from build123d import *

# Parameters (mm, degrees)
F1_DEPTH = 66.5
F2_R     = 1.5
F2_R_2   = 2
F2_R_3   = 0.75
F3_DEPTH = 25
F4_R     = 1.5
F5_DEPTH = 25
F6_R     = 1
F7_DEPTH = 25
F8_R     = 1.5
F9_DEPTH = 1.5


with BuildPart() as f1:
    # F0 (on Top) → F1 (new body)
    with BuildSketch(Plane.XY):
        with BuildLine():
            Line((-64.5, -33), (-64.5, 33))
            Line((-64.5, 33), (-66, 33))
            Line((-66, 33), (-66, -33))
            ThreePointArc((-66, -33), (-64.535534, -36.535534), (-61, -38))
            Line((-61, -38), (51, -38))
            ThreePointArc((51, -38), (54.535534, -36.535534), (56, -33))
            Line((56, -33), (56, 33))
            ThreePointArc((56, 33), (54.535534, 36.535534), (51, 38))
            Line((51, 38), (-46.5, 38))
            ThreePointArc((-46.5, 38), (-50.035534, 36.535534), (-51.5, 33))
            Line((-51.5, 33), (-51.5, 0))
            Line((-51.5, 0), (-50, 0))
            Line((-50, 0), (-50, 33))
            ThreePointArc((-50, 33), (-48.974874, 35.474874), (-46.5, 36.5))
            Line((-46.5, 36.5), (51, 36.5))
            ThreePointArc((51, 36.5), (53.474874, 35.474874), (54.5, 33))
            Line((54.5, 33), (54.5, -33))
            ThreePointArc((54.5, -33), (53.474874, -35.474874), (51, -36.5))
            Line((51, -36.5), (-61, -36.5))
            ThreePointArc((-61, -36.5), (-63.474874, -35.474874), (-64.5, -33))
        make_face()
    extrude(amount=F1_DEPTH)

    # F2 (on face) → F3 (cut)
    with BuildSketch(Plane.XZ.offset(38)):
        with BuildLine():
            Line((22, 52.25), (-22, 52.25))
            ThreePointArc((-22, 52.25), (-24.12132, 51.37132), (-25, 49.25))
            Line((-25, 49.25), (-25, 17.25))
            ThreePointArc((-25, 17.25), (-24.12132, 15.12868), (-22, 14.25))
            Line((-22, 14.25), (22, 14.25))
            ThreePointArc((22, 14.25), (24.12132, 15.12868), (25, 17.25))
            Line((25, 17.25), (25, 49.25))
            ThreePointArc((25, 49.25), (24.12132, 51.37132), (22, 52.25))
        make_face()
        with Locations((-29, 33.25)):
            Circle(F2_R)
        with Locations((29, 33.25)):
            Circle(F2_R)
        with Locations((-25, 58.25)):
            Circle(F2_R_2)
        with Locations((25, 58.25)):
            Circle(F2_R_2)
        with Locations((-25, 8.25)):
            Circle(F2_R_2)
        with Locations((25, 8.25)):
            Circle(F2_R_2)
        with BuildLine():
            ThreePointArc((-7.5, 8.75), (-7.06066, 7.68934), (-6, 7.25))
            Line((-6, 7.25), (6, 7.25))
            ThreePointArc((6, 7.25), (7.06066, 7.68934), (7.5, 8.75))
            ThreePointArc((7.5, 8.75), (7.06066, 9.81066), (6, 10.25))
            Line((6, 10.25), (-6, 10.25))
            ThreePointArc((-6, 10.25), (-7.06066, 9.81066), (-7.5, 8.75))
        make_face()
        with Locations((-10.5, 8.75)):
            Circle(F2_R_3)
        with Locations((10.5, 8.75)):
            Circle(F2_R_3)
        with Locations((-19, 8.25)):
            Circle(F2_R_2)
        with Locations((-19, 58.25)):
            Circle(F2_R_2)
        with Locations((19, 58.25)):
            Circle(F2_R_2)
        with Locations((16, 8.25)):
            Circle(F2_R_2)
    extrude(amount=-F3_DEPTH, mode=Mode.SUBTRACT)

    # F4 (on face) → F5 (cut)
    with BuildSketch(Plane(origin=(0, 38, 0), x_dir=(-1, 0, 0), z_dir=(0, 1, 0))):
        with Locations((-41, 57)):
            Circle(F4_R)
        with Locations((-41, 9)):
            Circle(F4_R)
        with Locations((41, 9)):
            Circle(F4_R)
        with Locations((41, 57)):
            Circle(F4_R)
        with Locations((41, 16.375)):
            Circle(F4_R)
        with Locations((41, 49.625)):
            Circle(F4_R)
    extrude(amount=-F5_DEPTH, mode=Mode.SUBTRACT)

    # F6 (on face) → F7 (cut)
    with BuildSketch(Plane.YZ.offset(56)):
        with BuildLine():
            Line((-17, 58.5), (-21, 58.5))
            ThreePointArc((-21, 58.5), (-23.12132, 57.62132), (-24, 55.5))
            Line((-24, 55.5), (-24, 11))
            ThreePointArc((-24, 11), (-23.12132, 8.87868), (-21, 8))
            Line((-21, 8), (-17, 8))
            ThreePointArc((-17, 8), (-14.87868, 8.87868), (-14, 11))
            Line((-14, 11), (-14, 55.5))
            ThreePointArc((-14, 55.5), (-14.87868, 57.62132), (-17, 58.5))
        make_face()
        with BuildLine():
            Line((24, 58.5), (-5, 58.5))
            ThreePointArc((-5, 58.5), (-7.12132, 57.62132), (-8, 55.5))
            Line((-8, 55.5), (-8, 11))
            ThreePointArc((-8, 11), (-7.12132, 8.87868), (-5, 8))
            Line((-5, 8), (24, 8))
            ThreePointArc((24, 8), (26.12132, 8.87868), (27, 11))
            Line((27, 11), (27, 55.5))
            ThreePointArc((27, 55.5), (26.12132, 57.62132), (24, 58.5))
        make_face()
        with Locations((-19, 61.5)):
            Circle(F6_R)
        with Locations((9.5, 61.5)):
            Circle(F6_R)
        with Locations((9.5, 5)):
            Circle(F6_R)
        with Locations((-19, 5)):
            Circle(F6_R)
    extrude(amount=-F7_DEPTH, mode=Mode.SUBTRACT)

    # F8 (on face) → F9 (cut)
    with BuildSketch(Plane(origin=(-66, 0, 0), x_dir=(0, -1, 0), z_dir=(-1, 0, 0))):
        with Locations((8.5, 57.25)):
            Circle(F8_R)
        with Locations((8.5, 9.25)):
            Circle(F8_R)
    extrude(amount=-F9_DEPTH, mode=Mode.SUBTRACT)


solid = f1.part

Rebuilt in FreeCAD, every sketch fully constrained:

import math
import FreeCAD as App
import Part
import Sketcher

V = App.Vector

doc = App.newDocument("Part")
body = doc.addObject("PartDesign::Body", "Body")

# Sketch on XY plane
sketch1 = doc.addObject("Sketcher::SketchObject", "Sketch")
body.addObject(sketch1)
sketch1.AttachmentSupport = (doc.XY_Plane, [""])
sketch1.MapMode = "FlatFace"
sketch1.addGeometry([
    Part.LineSegment(V(-64.5, -33, 0), V(-64.5, 33, 0)),  # 0
    Part.LineSegment(V(-64.5, 33, 0), V(-66, 33, 0)),  # 1
    Part.LineSegment(V(-66, 33, 0), V(-66, -33, 0)),  # 2
    Part.ArcOfCircle(Part.Circle(V(-61, -33, 0), V(0, 0, 1), 5), math.radians(180), math.radians(270)),  # 3
    Part.LineSegment(V(-61, -38, 0), V(51, -38, 0)),  # 4
    Part.ArcOfCircle(Part.Circle(V(51, -33, 0), V(0, 0, 1), 5), math.radians(-90), math.radians(0)),  # 5
    Part.LineSegment(V(56, -33, 0), V(56, 33, 0)),  # 6
    Part.ArcOfCircle(Part.Circle(V(51, 33, 0), V(0, 0, 1), 5), math.radians(0), math.radians(90)),  # 7
    Part.LineSegment(V(51, 38, 0), V(-46.5, 38, 0)),  # 8
    Part.ArcOfCircle(Part.Circle(V(-46.5, 33, 0), V(0, 0, 1), 5), math.radians(90), math.radians(180)),  # 9
    Part.LineSegment(V(-51.5, 33, 0), V(-51.5, 0, 0)),  # 10
    Part.LineSegment(V(-51.5, 0, 0), V(-50, 0, 0)),  # 11
    Part.LineSegment(V(-50, 0, 0), V(-50, 33, 0)),  # 12
    Part.ArcOfCircle(Part.Circle(V(-46.5, 33, 0), V(0, 0, 1), 3.5), math.radians(90), math.radians(180)),  # 13
    Part.LineSegment(V(-46.5, 36.5, 0), V(51, 36.5, 0)),  # 14
    Part.ArcOfCircle(Part.Circle(V(51, 33, 0), V(0, 0, 1), 3.5), math.radians(0), math.radians(90)),  # 15
    Part.LineSegment(V(54.5, 33, 0), V(54.5, -33, 0)),  # 16
    Part.ArcOfCircle(Part.Circle(V(51, -33, 0), V(0, 0, 1), 3.5), math.radians(-90), math.radians(0)),  # 17
    Part.LineSegment(V(51, -36.5, 0), V(-61, -36.5, 0)),  # 18
    Part.ArcOfCircle(Part.Circle(V(-61, -33, 0), V(0, 0, 1), 3.5), math.radians(180), math.radians(270)),  # 19
], False)
sketch1.addConstraint([
    Sketcher.Constraint("Coincident", 0, 2, 1, 1),
    Sketcher.Constraint("Coincident", 1, 2, 2, 1),
    Sketcher.Constraint("Tangent", 2, 2, 3, 1),
    Sketcher.Constraint("Tangent", 3, 2, 4, 1),
    Sketcher.Constraint("Tangent", 4, 2, 5, 1),
    Sketcher.Constraint("Tangent", 5, 2, 6, 1),
    Sketcher.Constraint("Tangent", 6, 2, 7, 1),
    Sketcher.Constraint("Tangent", 7, 2, 8, 1),
    Sketcher.Constraint("Tangent", 8, 2, 9, 1),
    Sketcher.Constraint("Tangent", 9, 2, 10, 1),
    Sketcher.Constraint("Coincident", 10, 2, 11, 1),
    Sketcher.Constraint("Coincident", 11, 2, 12, 1),
    Sketcher.Constraint("Tangent", 12, 2, 13, 2),
    Sketcher.Constraint("Tangent", 13, 1, 14, 1),
    Sketcher.Constraint("Tangent", 14, 2, 15, 2),
    Sketcher.Constraint("Tangent", 15, 1, 16, 1),
    Sketcher.Constraint("Tangent", 16, 2, 17, 2),
    Sketcher.Constraint("Tangent", 17, 1, 18, 1),
    Sketcher.Constraint("Tangent", 18, 2, 19, 2),
    Sketcher.Constraint("Tangent", 19, 1, 0, 1),
    Sketcher.Constraint("Vertical", 0),
    Sketcher.Constraint("Horizontal", 1),
    Sketcher.Constraint("Vertical", 2),
    Sketcher.Constraint("Horizontal", 4),
    Sketcher.Constraint("Vertical", 6),
    Sketcher.Constraint("Horizontal", 8),
    Sketcher.Constraint("Vertical", 10),
    Sketcher.Constraint("Horizontal", 11),
    Sketcher.Constraint("Vertical", 12),
    Sketcher.Constraint("Horizontal", 14),
    Sketcher.Constraint("Vertical", 16),
    Sketcher.Constraint("Horizontal", 18),
    Sketcher.Constraint("Coincident", 13, 3, 9, 3),
    Sketcher.Constraint("Coincident", 15, 3, 7, 3),
    Sketcher.Constraint("Coincident", 17, 3, 5, 3),
    Sketcher.Constraint("Coincident", 19, 3, 3, 3),
    Sketcher.Constraint("Equal", 3, 5),
    Sketcher.Constraint("Equal", 5, 7),
    Sketcher.Constraint("Equal", 7, 9),
    Sketcher.Constraint("PointOnObject", 10, 2, -1),
    Sketcher.Constraint("Horizontal", 15, 3, 0, 2),
    Sketcher.Constraint("Radius", 3, 5.0),
    Sketcher.Constraint("Radius", 13, 3.499999),
    Sketcher.Constraint("DistanceX", 4, 1, 4, 2, 112.0),
    Sketcher.Constraint("DistanceY", 0, 1, 0, 2, 66.0),
    Sketcher.Constraint("DistanceY", 10, 2, 10, 1, 33.0),
    Sketcher.Constraint("DistanceX", 8, 2, 8, 1, 97.5),
    Sketcher.Constraint("DistanceX", 3, 3, -1, 1, 61.0),
])
pad1 = doc.addObject("PartDesign::Pad", "Pad")
body.addObject(pad1)
pad1.Profile = sketch1
pad1.Length = 66.5

# Sketch on XZ plane
sketch2 = doc.addObject("Sketcher::SketchObject", "Sketch001")
body.addObject(sketch2)
sketch2.AttachmentSupport = (doc.XZ_Plane, [""])
sketch2.MapMode = "FlatFace"
sketch2.AttachmentOffset = App.Placement(V(0, 0, 38), App.Rotation())
sketch2.addGeometry([
    Part.LineSegment(V(22, 52.2, 0), V(-22, 52.2, 0)),  # 0
    Part.ArcOfCircle(Part.Circle(V(-22, 49.2, 0), V(0, 0, 1), 3), math.radians(90), math.radians(180)),  # 1
    Part.LineSegment(V(-25, 49.2, 0), V(-25, 17.2, 0)),  # 2
    Part.ArcOfCircle(Part.Circle(V(-22, 17.3, 0), V(0, 0, 1), 3), math.radians(-180), math.radians(-90)),  # 3
    Part.LineSegment(V(-22, 14.2, 0), V(22, 14.2, 0)),  # 4
    Part.ArcOfCircle(Part.Circle(V(22, 17.3, 0), V(0, 0, 1), 3), math.radians(-90), math.radians(0)),  # 5
    Part.LineSegment(V(25, 17.2, 0), V(25, 49.2, 0)),  # 6
    Part.ArcOfCircle(Part.Circle(V(22, 49.2, 0), V(0, 0, 1), 3), math.radians(0), math.radians(90)),  # 7
    Part.Circle(V(-29, 33.2, 0), V(0, 0, 1), 1.5),  # 8
    Part.Circle(V(29, 33.2, 0), V(0, 0, 1), 1.5),  # 9
    Part.Circle(V(-25, 58.2, 0), V(0, 0, 1), 2),  # 10
    Part.Circle(V(25, 58.2, 0), V(0, 0, 1), 2),  # 11
    Part.Circle(V(-25, 8.2, 0), V(0, 0, 1), 2),  # 12
    Part.Circle(V(25, 8.2, 0), V(0, 0, 1), 2),  # 13
    Part.ArcOfCircle(Part.Circle(V(-6, 8.8, 0), V(0, 0, 1), 1.5), math.radians(-180), math.radians(-90)),  # 14
    Part.LineSegment(V(-6, 7.2, 0), V(6, 7.2, 0)),  # 15
    Part.ArcOfCircle(Part.Circle(V(6, 8.8, 0), V(0, 0, 1), 1.5), math.radians(-90), math.radians(0)),  # 16
    Part.ArcOfCircle(Part.Circle(V(6, 8.7, 0), V(0, 0, 1), 1.5), math.radians(0), math.radians(90)),  # 17
    Part.LineSegment(V(6, 10.2, 0), V(-6, 10.2, 0)),  # 18
    Part.ArcOfCircle(Part.Circle(V(-6, 8.7, 0), V(0, 0, 1), 1.5), math.radians(90), math.radians(180)),  # 19
    Part.Circle(V(-10.5, 8.8, 0), V(0, 0, 1), 0.8),  # 20
    Part.Circle(V(10.5, 8.8, 0), V(0, 0, 1), 0.8),  # 21
    Part.Circle(V(-19, 8.2, 0), V(0, 0, 1), 2),  # 22
    Part.Circle(V(-19, 58.2, 0), V(0, 0, 1), 2),  # 23
    Part.Circle(V(19, 58.2, 0), V(0, 0, 1), 2),  # 24
    Part.Circle(V(16, 8.2, 0), V(0, 0, 1), 2),  # 25
], False)
sketch2.addConstraint([
    Sketcher.Constraint("Tangent", 0, 2, 1, 1),
    Sketcher.Constraint("Tangent", 1, 2, 2, 1),
    Sketcher.Constraint("Tangent", 2, 2, 3, 1),
    Sketcher.Constraint("Tangent", 3, 2, 4, 1),
    Sketcher.Constraint("Tangent", 4, 2, 5, 1),
    Sketcher.Constraint("Tangent", 5, 2, 6, 1),
    Sketcher.Constraint("Tangent", 6, 2, 7, 1),
    Sketcher.Constraint("Tangent", 7, 2, 0, 1),
    Sketcher.Constraint("Tangent", 14, 2, 15, 1),
    Sketcher.Constraint("Tangent", 15, 2, 16, 1),
    Sketcher.Constraint("Tangent", 16, 2, 17, 1),
    Sketcher.Constraint("Tangent", 17, 2, 18, 1),
    Sketcher.Constraint("Tangent", 18, 2, 19, 1),
    Sketcher.Constraint("Tangent", 19, 2, 14, 1),
    Sketcher.Constraint("Horizontal", 0),
    Sketcher.Constraint("Vertical", 2),
    Sketcher.Constraint("Horizontal", 4),
    Sketcher.Constraint("Vertical", 6),
    Sketcher.Constraint("Horizontal", 15),
    Sketcher.Constraint("Horizontal", 18),
    Sketcher.Constraint("Equal", 1, 3),
    Sketcher.Constraint("Equal", 3, 5),
    Sketcher.Constraint("Equal", 5, 7),
    Sketcher.Constraint("Equal", 8, 9),
    Sketcher.Constraint("Equal", 10, 11),
    Sketcher.Constraint("Equal", 11, 12),
    Sketcher.Constraint("Equal", 12, 13),
    Sketcher.Constraint("Equal", 9, 14),
    Sketcher.Constraint("Equal", 14, 16),
    Sketcher.Constraint("Equal", 16, 17),
    Sketcher.Constraint("Equal", 20, 21),
    Sketcher.Constraint("Equal", 13, 22),
    Sketcher.Constraint("Equal", 22, 23),
    Sketcher.Constraint("Equal", 23, 24),
    Sketcher.Constraint("Equal", 24, 25),
    Sketcher.Constraint("Symmetric", 8, 3, 9, 3, -2),
    Sketcher.Constraint("Symmetric", 10, 3, 11, 3, -2),
    Sketcher.Constraint("Symmetric", 12, 3, 13, 3, -2),
    Sketcher.Constraint("Symmetric", 20, 3, 21, 3, -2),
    Sketcher.Constraint("Symmetric", 23, 3, 24, 3, -2),
    Sketcher.Constraint("Symmetric", 16, 2, 19, 2, -2),
    Sketcher.Constraint("Horizontal", 19, 3, 20, 3),
    Sketcher.Constraint("Horizontal", 13, 3, 22, 3),
    Sketcher.Constraint("Horizontal", 11, 3, 23, 3),
    Sketcher.Constraint("Horizontal", 22, 3, 25, 3),
    Sketcher.Constraint("Horizontal", 21, 3, 16, 2),
    Sketcher.Constraint("Vertical", 10, 3, 12, 3),
    Sketcher.Constraint("Vertical", 22, 3, 23, 3),
    Sketcher.Constraint("Vertical", 12, 3, 1, 2),
    Sketcher.Constraint("Vertical", 13, 3, 5, 2),
    Sketcher.Constraint("Diameter", 8, 3.0),
    Sketcher.Constraint("Diameter", 10, 4.0),
    Sketcher.Constraint("Radius", 1, 3.000001),
    Sketcher.Constraint("Diameter", 20, 1.5),
    Sketcher.Constraint("DistanceX", 0, 2, 0, 1, 44.0),
    Sketcher.Constraint("DistanceX", 15, 1, 15, 2, 12.0),
    Sketcher.Constraint("DistanceY", 2, 2, 2, 1, 32.0),
    Sketcher.Constraint("DistanceX", 8, 3, -1, 1, 29.0),
    Sketcher.Constraint("DistanceX", 22, 3, -1, 1, 19.0),
    Sketcher.Constraint("DistanceX", -1, 1, 25, 3, 16.0),
    Sketcher.Constraint("DistanceY", 8, 3, 1, 3, 15.999999),
    Sketcher.Constraint("DistanceY", 1, 3, 10, 3, 9.000001),
    Sketcher.Constraint("DistanceY", 12, 3, 3, 3, 9.000001),
    Sketcher.Constraint("DistanceY", 15, 2, 25, 3, 1.0),
    Sketcher.Constraint("DistanceX", 16, 2, 21, 3, 3.0),
    Sketcher.Constraint("DistanceY", -1, 1, 1, 3, 49.249999),
])
pocket1 = doc.addObject("PartDesign::Pocket", "Pocket")
body.addObject(pocket1)
pocket1.Profile = sketch2
pocket1.Length = 25

# Sketch on XZ plane
sketch3 = doc.addObject("Sketcher::SketchObject", "Sketch002")
body.addObject(sketch3)
sketch3.AttachmentSupport = (doc.XZ_Plane, [""])
sketch3.MapMode = "FlatFace"
sketch3.AttachmentOffset = App.Placement(V(0, 0, -38), App.Rotation())
sketch3.addGeometry([
    Part.Circle(V(41, 57, 0), V(0, 0, 1), 1.5),  # 0
    Part.Circle(V(41, 9, 0), V(0, 0, 1), 1.5),  # 1
    Part.Circle(V(-41, 9, 0), V(0, 0, 1), 1.5),  # 2
    Part.Circle(V(-41, 57, 0), V(0, 0, 1), 1.5),  # 3
    Part.Circle(V(-41, 16.4, 0), V(0, 0, 1), 1.5),  # 4
    Part.Circle(V(-41, 49.6, 0), V(0, 0, 1), 1.5),  # 5
], False)
sketch3.addConstraint([
    Sketcher.Constraint("Equal", 0, 1),
    Sketcher.Constraint("Equal", 1, 2),
    Sketcher.Constraint("Equal", 2, 3),
    Sketcher.Constraint("Equal", 3, 4),
    Sketcher.Constraint("Equal", 4, 5),
    Sketcher.Constraint("Symmetric", 1, 3, 2, 3, -2),
    Sketcher.Constraint("Symmetric", 0, 3, 3, 3, -2),
    Sketcher.Constraint("Vertical", 0, 3, 1, 3),
    Sketcher.Constraint("Vertical", 3, 3, 4, 3),
    Sketcher.Constraint("Vertical", 4, 3, 5, 3),
    Sketcher.Constraint("Diameter", 0, 3.0),
    Sketcher.Constraint("DistanceX", -1, 1, 0, 3, 41.0),
    Sketcher.Constraint("DistanceY", -1, 1, 0, 3, 57.0),
    Sketcher.Constraint("DistanceY", -1, 1, 1, 3, 9.0),
    Sketcher.Constraint("DistanceY", 4, 3, 5, 3, 33.25),
    Sketcher.Constraint("DistanceY", -1, 1, 4, 3, 16.375),
])
pocket2 = doc.addObject("PartDesign::Pocket", "Pocket001")
body.addObject(pocket2)
pocket2.Profile = sketch3
pocket2.Length = 25
pocket2.Reversed = True

# Sketch on YZ plane
sketch4 = doc.addObject("Sketcher::SketchObject", "Sketch003")
body.addObject(sketch4)
sketch4.AttachmentSupport = (doc.YZ_Plane, [""])
sketch4.MapMode = "FlatFace"
sketch4.AttachmentOffset = App.Placement(V(0, 0, 56), App.Rotation())
sketch4.addGeometry([
    Part.LineSegment(V(-17, 58.5, 0), V(-21, 58.5, 0)),  # 0
    Part.ArcOfCircle(Part.Circle(V(-21, 55.5, 0), V(0, 0, 1), 3), math.radians(90), math.radians(180)),  # 1
    Part.LineSegment(V(-24, 55.5, 0), V(-24, 11, 0)),  # 2
    Part.ArcOfCircle(Part.Circle(V(-21, 11, 0), V(0, 0, 1), 3), math.radians(-180), math.radians(-90)),  # 3
    Part.LineSegment(V(-21, 8, 0), V(-17, 8, 0)),  # 4
    Part.ArcOfCircle(Part.Circle(V(-17, 11, 0), V(0, 0, 1), 3), math.radians(-90), math.radians(0)),  # 5
    Part.LineSegment(V(-14, 11, 0), V(-14, 55.5, 0)),  # 6
    Part.ArcOfCircle(Part.Circle(V(-17, 55.5, 0), V(0, 0, 1), 3), math.radians(0), math.radians(90)),  # 7
    Part.LineSegment(V(24, 58.5, 0), V(-5, 58.5, 0)),  # 8
    Part.ArcOfCircle(Part.Circle(V(-5, 55.5, 0), V(0, 0, 1), 3), math.radians(90), math.radians(180)),  # 9
    Part.LineSegment(V(-8, 55.5, 0), V(-8, 11, 0)),  # 10
    Part.ArcOfCircle(Part.Circle(V(-5, 11, 0), V(0, 0, 1), 3), math.radians(-180), math.radians(-90)),  # 11
    Part.LineSegment(V(-5, 8, 0), V(24, 8, 0)),  # 12
    Part.ArcOfCircle(Part.Circle(V(24, 11, 0), V(0, 0, 1), 3), math.radians(-90), math.radians(0)),  # 13
    Part.LineSegment(V(27, 11, 0), V(27, 55.5, 0)),  # 14
    Part.ArcOfCircle(Part.Circle(V(24, 55.5, 0), V(0, 0, 1), 3), math.radians(0), math.radians(90)),  # 15
    Part.Circle(V(-19, 61.5, 0), V(0, 0, 1), 1),  # 16
    Part.Circle(V(9.5, 61.5, 0), V(0, 0, 1), 1),  # 17
    Part.Circle(V(9.5, 5, 0), V(0, 0, 1), 1),  # 18
    Part.Circle(V(-19, 5, 0), V(0, 0, 1), 1),  # 19
], False)
sketch4.addConstraint([
    Sketcher.Constraint("Tangent", 0, 2, 1, 1),
    Sketcher.Constraint("Tangent", 1, 2, 2, 1),
    Sketcher.Constraint("Tangent", 2, 2, 3, 1),
    Sketcher.Constraint("Tangent", 3, 2, 4, 1),
    Sketcher.Constraint("Tangent", 4, 2, 5, 1),
    Sketcher.Constraint("Tangent", 5, 2, 6, 1),
    Sketcher.Constraint("Tangent", 6, 2, 7, 1),
    Sketcher.Constraint("Tangent", 7, 2, 0, 1),
    Sketcher.Constraint("Tangent", 8, 2, 9, 1),
    Sketcher.Constraint("Tangent", 9, 2, 10, 1),
    Sketcher.Constraint("Tangent", 10, 2, 11, 1),
    Sketcher.Constraint("Tangent", 11, 2, 12, 1),
    Sketcher.Constraint("Tangent", 12, 2, 13, 1),
    Sketcher.Constraint("Tangent", 13, 2, 14, 1),
    Sketcher.Constraint("Tangent", 14, 2, 15, 1),
    Sketcher.Constraint("Tangent", 15, 2, 8, 1),
    Sketcher.Constraint("Horizontal", 0),
    Sketcher.Constraint("Vertical", 2),
    Sketcher.Constraint("Horizontal", 4),
    Sketcher.Constraint("Vertical", 6),
    Sketcher.Constraint("Horizontal", 8),
    Sketcher.Constraint("Vertical", 10),
    Sketcher.Constraint("Horizontal", 12),
    Sketcher.Constraint("Vertical", 14),
    Sketcher.Constraint("Equal", 1, 3),
    Sketcher.Constraint("Equal", 3, 5),
    Sketcher.Constraint("Equal", 5, 7),
    Sketcher.Constraint("Equal", 7, 9),
    Sketcher.Constraint("Equal", 9, 11),
    Sketcher.Constraint("Equal", 11, 13),
    Sketcher.Constraint("Equal", 13, 15),
    Sketcher.Constraint("Equal", 16, 17),
    Sketcher.Constraint("Equal", 17, 18),
    Sketcher.Constraint("Equal", 18, 19),
    Sketcher.Constraint("Horizontal", 7, 3, 9, 3),
    Sketcher.Constraint("Horizontal", 5, 3, 11, 3),
    Sketcher.Constraint("Horizontal", 16, 3, 17, 3),
    Sketcher.Constraint("Horizontal", 18, 3, 19, 3),
    Sketcher.Constraint("Vertical", 17, 3, 18, 3),
    Sketcher.Constraint("Vertical", 16, 3, 19, 3),
    Sketcher.Constraint("Diameter", 16, 2.0),
    Sketcher.Constraint("Radius", 1, 3.000001),
    Sketcher.Constraint("DistanceX", 0, 2, 0, 1, 4.0),
    Sketcher.Constraint("DistanceX", 8, 2, 8, 1, 29.0),
    Sketcher.Constraint("DistanceY", 2, 2, 2, 1, 44.5),
    Sketcher.Constraint("DistanceX", 1, 3, -1, 1, 20.999999),
    Sketcher.Constraint("DistanceY", -1, 1, 3, 3, 11.000001),
    Sketcher.Constraint("DistanceX", 9, 3, -1, 1, 4.999999),
    Sketcher.Constraint("DistanceX", 16, 3, -1, 1, 19.0),
    Sketcher.Constraint("DistanceY", -1, 1, 18, 3, 5.0),
    Sketcher.Constraint("DistanceY", 1, 3, 16, 3, 6.000001),
    Sketcher.Constraint("DistanceX", -1, 1, 17, 3, 9.5),
])
pocket3 = doc.addObject("PartDesign::Pocket", "Pocket002")
body.addObject(pocket3)
pocket3.Profile = sketch4
pocket3.Length = 25

# Sketch on YZ plane
sketch5 = doc.addObject("Sketcher::SketchObject", "Sketch004")
body.addObject(sketch5)
sketch5.AttachmentSupport = (doc.YZ_Plane, [""])
sketch5.MapMode = "FlatFace"
sketch5.AttachmentOffset = App.Placement(V(0, 0, -66), App.Rotation())
sketch5.addGeometry([
    Part.Circle(V(-8.5, 57.2, 0), V(0, 0, 1), 1.5),
    Part.Circle(V(-8.5, 9.2, 0), V(0, 0, 1), 1.5),
], False)
sketch5.addConstraint([
    Sketcher.Constraint("Equal", 0, 1),
    Sketcher.Constraint("Vertical", 0, 3, 1, 3),
    Sketcher.Constraint("Diameter", 0, 3.0),
    Sketcher.Constraint("DistanceY", 1, 3, 0, 3, 48.0),
    Sketcher.Constraint("DistanceX", 0, 3, -1, 1, 8.5),
    Sketcher.Constraint("DistanceY", -1, 1, 0, 3, 57.25),
])
pocket4 = doc.addObject("PartDesign::Pocket", "Pocket003")
body.addObject(pocket4)
pocket4.Profile = sketch5
pocket4.Length = 1.5
pocket4.Reversed = True

doc.recompute()
